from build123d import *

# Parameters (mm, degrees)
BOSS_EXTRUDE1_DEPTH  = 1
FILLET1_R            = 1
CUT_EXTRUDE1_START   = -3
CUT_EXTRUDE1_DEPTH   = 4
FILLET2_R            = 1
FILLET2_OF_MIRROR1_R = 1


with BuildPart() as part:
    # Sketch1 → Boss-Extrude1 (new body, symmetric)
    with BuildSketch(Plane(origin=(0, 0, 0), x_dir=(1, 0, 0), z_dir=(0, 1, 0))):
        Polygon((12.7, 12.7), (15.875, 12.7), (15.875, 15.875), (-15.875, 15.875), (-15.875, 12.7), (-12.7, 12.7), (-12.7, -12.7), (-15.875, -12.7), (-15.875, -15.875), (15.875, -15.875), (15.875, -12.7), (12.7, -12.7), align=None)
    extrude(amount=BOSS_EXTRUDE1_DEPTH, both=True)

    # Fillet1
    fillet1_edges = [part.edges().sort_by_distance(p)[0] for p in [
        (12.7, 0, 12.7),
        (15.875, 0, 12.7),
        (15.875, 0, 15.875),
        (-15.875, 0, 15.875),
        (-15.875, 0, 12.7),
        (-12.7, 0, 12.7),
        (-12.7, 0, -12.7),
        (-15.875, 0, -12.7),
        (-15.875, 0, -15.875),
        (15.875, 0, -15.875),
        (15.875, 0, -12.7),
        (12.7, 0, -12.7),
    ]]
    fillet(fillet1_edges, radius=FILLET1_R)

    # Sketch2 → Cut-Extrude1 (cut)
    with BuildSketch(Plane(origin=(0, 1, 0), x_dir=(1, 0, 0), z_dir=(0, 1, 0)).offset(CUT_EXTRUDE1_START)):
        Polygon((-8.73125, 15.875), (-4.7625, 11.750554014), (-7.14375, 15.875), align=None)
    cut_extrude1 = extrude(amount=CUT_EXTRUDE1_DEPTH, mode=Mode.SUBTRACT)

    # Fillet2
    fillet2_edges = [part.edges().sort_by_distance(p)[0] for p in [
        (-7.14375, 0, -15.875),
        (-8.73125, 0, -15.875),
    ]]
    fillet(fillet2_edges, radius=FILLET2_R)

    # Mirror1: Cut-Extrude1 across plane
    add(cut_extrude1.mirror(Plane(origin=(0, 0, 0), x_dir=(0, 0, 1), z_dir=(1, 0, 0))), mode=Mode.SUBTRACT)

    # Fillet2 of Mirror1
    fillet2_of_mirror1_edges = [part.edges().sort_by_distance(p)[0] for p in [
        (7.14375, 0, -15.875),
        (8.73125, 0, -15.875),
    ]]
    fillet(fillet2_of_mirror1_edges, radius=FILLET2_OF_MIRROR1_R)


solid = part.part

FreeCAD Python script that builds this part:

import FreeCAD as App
import Part
import Sketcher
from FreeCAD import Vector
Q = App.Units.Quantity


def edges_at(feature, points):
    """Names of the edges that pass closest to the given points."""
    edges = feature.Shape.Edges
    near = lambda p: min(range(len(edges)), key=lambda i: edges[i].distToShape(Part.Vertex(*p))[0])
    return sorted({f"Edge{near(p) + 1}" for p in points})

doc = App.newDocument("Part")
body = doc.addObject("PartDesign::Body", "Body")

# Sketch on XZ plane
sketch1 = body.newObject("Sketcher::SketchObject", "Sketch")
sketch1.AttachmentSupport = (doc.getObject("XZ_Plane"), [""])
sketch1.MapMode = "FlatFace"
sketch1.addGeometry([
    Part.LineSegment(Vector(12.7, -12.7, 0), Vector(15.9, -12.7, 0)),  # 0
    Part.LineSegment(Vector(15.9, -12.7, 0), Vector(15.9, -15.9, 0)),  # 1
    Part.LineSegment(Vector(15.9, -15.9, 0), Vector(-15.9, -15.9, 0)),  # 2
    Part.LineSegment(Vector(-15.9, -15.9, 0), Vector(-15.9, -12.7, 0)),  # 3
    Part.LineSegment(Vector(-15.9, -12.7, 0), Vector(-12.7, -12.7, 0)),  # 4
    Part.LineSegment(Vector(-12.7, -12.7, 0), Vector(-12.7, 12.7, 0)),  # 5
    Part.LineSegment(Vector(-12.7, 12.7, 0), Vector(-15.9, 12.7, 0)),  # 6
    Part.LineSegment(Vector(-15.9, 12.7, 0), Vector(-15.9, 15.9, 0)),  # 7
    Part.LineSegment(Vector(-15.9, 15.9, 0), Vector(15.9, 15.9, 0)),  # 8
    Part.LineSegment(Vector(15.9, 15.9, 0), Vector(15.9, 12.7, 0)),  # 9
    Part.LineSegment(Vector(15.9, 12.7, 0), Vector(12.7, 12.7, 0)),  # 10
    Part.LineSegment(Vector(12.7, 12.7, 0), Vector(12.7, -12.7, 0)),  # 11
], False)
sketch1.addConstraint([
    Sketcher.Constraint("Coincident", 0, 2, 1, 1),
    Sketcher.Constraint("Coincident", 1, 2, 2, 1),
    Sketcher.Constraint("Coincident", 2, 2, 3, 1),
    Sketcher.Constraint("Coincident", 3, 2, 4, 1),
    Sketcher.Constraint("Coincident", 4, 2, 5, 1),
    Sketcher.Constraint("Coincident", 5, 2, 6, 1),
    Sketcher.Constraint("Coincident", 6, 2, 7, 1),
    Sketcher.Constraint("Coincident", 7, 2, 8, 1),
    Sketcher.Constraint("Coincident", 8, 2, 9, 1),
    Sketcher.Constraint("Coincident", 9, 2, 10, 1),
    Sketcher.Constraint("Coincident", 10, 2, 11, 1),
    Sketcher.Constraint("Coincident", 11, 2, 0, 1),
    Sketcher.Constraint("Horizontal", 0),
    Sketcher.Constraint("Vertical", 1),
    Sketcher.Constraint("Horizontal", 2),
    Sketcher.Constraint("Vertical", 3),
    Sketcher.Constraint("Horizontal", 4),
    Sketcher.Constraint("Vertical", 5),
    Sketcher.Constraint("Horizontal", 6),
    Sketcher.Constraint("Vertical", 7),
    Sketcher.Constraint("Horizontal", 8),
    Sketcher.Constraint("Vertical", 9),
    Sketcher.Constraint("Horizontal", 10),
    Sketcher.Constraint("Vertical", 11),
    Sketcher.Constraint("Symmetric", 0, 2, 6, 2, -1, 1),
    Sketcher.Constraint("Symmetric", 2, 2, 8, 2, -1, 1),
    Sketcher.Constraint("Symmetric", 4, 2, 10, 2, -1, 1),
    Sketcher.Constraint("Symmetric", 0, 2, 3, 2, -2),
    Sketcher.Constraint("Equal", 10, 1),
    Sketcher.Constraint("DistanceY", 5, 1, 5, 2, Q("1 in")),
    Sketcher.Constraint("DistanceX", 5, 2, 10, 2, Q("1 in")),
    Sketcher.Constraint("DistanceX", 2, 2, 2, 1, Q("1.25 in")),
])
pad1 = body.newObject("PartDesign::Pad", "Pad")
pad1.Profile = sketch1
pad1.Length = 2
pad1.Midplane = True
doc.recompute()

fillet = body.newObject("PartDesign::Fillet", "Fillet")
fillet.Base = (pad1, edges_at(pad1, [
    (12.7, 0, 12.7),
    (15.875, 0, 12.7),
    (15.875, 0, 15.875),
    (-15.875, 0, 15.875),
    (-15.875, 0, 12.7),
    (-12.7, 0, 12.7),
    (-12.7, 0, -12.7),
    (-15.875, 0, -12.7),
    (-15.875, 0, -15.875),
    (15.875, 0, -15.875),
    (15.875, 0, -12.7),
    (12.7, 0, -12.7),
]))
fillet.Radius = 1

# Sketch on XZ plane
sketch2 = body.newObject("Sketcher::SketchObject", "Sketch001")
sketch2.AttachmentSupport = (doc.getObject("XZ_Plane"), [""])
sketch2.MapMode = "FlatFace"
sketch2.AttachmentOffset = App.Placement(Vector(0, 0, 2), App.Rotation())
sketch2.addGeometry([
    Part.LineSegment(Vector(-8.7, -15.9, 0), Vector(-4.8, -11.8, 0)),
    Part.LineSegment(Vector(-4.8, -11.8, 0), Vector(-7.1, -15.9, 0)),
    Part.LineSegment(Vector(-7.1, -15.9, 0), Vector(-8.7, -15.9, 0)),
], False)
sketch2.addConstraint([
    Sketcher.Constraint("Coincident", 0, 2, 1, 1),
    Sketcher.Constraint("Coincident", 1, 2, 2, 1),
    Sketcher.Constraint("Coincident", 2, 2, 0, 1),
    Sketcher.Constraint("Horizontal", 2),
    Sketcher.Constraint("Angle", 1, Q("-120 deg")),
    Sketcher.Constraint("DistanceX", 2, 2, 2, 1, Q("0.0625 in")),
    Sketcher.Constraint("Distance", 1, Q("0.1875 in")),
    Sketcher.Constraint("DistanceX", 0, 2, -1, 1, Q("0.1875 in")),
    Sketcher.Constraint("DistanceY", 1, 2, -1, 1, Q("0.625 in")),
])
pocket1 = body.newObject("PartDesign::Pocket", "Pocket")
pocket1.Profile = sketch2
pocket1.Length = 4
doc.recompute()

fillet2 = body.newObject("PartDesign::Fillet", "Fillet001")
fillet2.Base = (pocket1, edges_at(pocket1, [(-7.144, 0, -15.875), (-8.731, 0, -15.875)]))
fillet2.Radius = 1
doc.recompute()

mirrored = body.newObject("PartDesign::Mirrored", "Mirrored")
mirrored.Originals = [pocket1]
mirrored.MirrorPlane = (doc.getObject("YZ_Plane"), [""])
body.Tip = mirrored
doc.recompute()

fillet3 = body.newObject("PartDesign::Fillet", "Fillet002")
fillet3.Base = (mirrored, edges_at(mirrored, [(7.144, 0, -15.875), (8.731, 0, -15.875)]))
fillet3.Radius = 1

doc.recompute()
